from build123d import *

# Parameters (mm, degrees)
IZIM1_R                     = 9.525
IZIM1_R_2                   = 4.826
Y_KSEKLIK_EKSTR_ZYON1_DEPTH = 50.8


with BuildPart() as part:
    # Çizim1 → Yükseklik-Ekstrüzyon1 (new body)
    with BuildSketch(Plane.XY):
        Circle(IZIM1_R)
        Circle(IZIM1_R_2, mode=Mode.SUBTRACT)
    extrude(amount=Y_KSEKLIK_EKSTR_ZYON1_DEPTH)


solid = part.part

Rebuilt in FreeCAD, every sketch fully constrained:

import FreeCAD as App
import Part
import Sketcher
Q = App.Units.Quantity

doc = App.newDocument("Part")
params = doc.addObject("Spreadsheet::Sheet", "Params")
for row, (alias, value) in enumerate([
    ("sketch1_diameter", "0.75 in"),
    ("sketch1_diameter2", "0.38 in"),
    ("pad1_length", "2 in"),
], start=1):
    params.set(f"A{row}", alias)
    params.set(f"B{row}", "=" + value)
    params.setAlias(f"B{row}", alias)

body = doc.addObject("PartDesign::Body", "Body")

# Sketch on XY plane
sketch1 = body.newObject("Sketcher::SketchObject", "Sketch")
sketch1.AttachmentSupport = (doc.getObject("XY_Plane"), [""])
sketch1.MapMode = "FlatFace"
sketch1.addGeometry([
    Part.Circle(App.Vector(0, 0, 0), App.Vector(0, 0, 1), 9.525),
    Part.Circle(App.Vector(0, 0, 0), App.Vector(0, 0, 1), 4.826),
], False)
sketch1.addConstraint([
    Sketcher.Constraint("Coincident", 0, 3, -1, 1),
    Sketcher.Constraint("Coincident", 1, 3, -1, 1),
    Sketcher.Constraint("Diameter", 0, Q("0.75 in")),
    Sketcher.Constraint("Diameter", 1, Q("0.38 in")),
])
sketch1.setExpression("Constraints[2]", "Params.sketch1_diameter")
sketch1.setExpression("Constraints[3]", "Params.sketch1_diameter2")
pad1 = body.newObject("PartDesign::Pad", "Pad")
pad1.Profile = sketch1
pad1.setExpression("Length", "Params.pad1_length")

doc.recompute()
